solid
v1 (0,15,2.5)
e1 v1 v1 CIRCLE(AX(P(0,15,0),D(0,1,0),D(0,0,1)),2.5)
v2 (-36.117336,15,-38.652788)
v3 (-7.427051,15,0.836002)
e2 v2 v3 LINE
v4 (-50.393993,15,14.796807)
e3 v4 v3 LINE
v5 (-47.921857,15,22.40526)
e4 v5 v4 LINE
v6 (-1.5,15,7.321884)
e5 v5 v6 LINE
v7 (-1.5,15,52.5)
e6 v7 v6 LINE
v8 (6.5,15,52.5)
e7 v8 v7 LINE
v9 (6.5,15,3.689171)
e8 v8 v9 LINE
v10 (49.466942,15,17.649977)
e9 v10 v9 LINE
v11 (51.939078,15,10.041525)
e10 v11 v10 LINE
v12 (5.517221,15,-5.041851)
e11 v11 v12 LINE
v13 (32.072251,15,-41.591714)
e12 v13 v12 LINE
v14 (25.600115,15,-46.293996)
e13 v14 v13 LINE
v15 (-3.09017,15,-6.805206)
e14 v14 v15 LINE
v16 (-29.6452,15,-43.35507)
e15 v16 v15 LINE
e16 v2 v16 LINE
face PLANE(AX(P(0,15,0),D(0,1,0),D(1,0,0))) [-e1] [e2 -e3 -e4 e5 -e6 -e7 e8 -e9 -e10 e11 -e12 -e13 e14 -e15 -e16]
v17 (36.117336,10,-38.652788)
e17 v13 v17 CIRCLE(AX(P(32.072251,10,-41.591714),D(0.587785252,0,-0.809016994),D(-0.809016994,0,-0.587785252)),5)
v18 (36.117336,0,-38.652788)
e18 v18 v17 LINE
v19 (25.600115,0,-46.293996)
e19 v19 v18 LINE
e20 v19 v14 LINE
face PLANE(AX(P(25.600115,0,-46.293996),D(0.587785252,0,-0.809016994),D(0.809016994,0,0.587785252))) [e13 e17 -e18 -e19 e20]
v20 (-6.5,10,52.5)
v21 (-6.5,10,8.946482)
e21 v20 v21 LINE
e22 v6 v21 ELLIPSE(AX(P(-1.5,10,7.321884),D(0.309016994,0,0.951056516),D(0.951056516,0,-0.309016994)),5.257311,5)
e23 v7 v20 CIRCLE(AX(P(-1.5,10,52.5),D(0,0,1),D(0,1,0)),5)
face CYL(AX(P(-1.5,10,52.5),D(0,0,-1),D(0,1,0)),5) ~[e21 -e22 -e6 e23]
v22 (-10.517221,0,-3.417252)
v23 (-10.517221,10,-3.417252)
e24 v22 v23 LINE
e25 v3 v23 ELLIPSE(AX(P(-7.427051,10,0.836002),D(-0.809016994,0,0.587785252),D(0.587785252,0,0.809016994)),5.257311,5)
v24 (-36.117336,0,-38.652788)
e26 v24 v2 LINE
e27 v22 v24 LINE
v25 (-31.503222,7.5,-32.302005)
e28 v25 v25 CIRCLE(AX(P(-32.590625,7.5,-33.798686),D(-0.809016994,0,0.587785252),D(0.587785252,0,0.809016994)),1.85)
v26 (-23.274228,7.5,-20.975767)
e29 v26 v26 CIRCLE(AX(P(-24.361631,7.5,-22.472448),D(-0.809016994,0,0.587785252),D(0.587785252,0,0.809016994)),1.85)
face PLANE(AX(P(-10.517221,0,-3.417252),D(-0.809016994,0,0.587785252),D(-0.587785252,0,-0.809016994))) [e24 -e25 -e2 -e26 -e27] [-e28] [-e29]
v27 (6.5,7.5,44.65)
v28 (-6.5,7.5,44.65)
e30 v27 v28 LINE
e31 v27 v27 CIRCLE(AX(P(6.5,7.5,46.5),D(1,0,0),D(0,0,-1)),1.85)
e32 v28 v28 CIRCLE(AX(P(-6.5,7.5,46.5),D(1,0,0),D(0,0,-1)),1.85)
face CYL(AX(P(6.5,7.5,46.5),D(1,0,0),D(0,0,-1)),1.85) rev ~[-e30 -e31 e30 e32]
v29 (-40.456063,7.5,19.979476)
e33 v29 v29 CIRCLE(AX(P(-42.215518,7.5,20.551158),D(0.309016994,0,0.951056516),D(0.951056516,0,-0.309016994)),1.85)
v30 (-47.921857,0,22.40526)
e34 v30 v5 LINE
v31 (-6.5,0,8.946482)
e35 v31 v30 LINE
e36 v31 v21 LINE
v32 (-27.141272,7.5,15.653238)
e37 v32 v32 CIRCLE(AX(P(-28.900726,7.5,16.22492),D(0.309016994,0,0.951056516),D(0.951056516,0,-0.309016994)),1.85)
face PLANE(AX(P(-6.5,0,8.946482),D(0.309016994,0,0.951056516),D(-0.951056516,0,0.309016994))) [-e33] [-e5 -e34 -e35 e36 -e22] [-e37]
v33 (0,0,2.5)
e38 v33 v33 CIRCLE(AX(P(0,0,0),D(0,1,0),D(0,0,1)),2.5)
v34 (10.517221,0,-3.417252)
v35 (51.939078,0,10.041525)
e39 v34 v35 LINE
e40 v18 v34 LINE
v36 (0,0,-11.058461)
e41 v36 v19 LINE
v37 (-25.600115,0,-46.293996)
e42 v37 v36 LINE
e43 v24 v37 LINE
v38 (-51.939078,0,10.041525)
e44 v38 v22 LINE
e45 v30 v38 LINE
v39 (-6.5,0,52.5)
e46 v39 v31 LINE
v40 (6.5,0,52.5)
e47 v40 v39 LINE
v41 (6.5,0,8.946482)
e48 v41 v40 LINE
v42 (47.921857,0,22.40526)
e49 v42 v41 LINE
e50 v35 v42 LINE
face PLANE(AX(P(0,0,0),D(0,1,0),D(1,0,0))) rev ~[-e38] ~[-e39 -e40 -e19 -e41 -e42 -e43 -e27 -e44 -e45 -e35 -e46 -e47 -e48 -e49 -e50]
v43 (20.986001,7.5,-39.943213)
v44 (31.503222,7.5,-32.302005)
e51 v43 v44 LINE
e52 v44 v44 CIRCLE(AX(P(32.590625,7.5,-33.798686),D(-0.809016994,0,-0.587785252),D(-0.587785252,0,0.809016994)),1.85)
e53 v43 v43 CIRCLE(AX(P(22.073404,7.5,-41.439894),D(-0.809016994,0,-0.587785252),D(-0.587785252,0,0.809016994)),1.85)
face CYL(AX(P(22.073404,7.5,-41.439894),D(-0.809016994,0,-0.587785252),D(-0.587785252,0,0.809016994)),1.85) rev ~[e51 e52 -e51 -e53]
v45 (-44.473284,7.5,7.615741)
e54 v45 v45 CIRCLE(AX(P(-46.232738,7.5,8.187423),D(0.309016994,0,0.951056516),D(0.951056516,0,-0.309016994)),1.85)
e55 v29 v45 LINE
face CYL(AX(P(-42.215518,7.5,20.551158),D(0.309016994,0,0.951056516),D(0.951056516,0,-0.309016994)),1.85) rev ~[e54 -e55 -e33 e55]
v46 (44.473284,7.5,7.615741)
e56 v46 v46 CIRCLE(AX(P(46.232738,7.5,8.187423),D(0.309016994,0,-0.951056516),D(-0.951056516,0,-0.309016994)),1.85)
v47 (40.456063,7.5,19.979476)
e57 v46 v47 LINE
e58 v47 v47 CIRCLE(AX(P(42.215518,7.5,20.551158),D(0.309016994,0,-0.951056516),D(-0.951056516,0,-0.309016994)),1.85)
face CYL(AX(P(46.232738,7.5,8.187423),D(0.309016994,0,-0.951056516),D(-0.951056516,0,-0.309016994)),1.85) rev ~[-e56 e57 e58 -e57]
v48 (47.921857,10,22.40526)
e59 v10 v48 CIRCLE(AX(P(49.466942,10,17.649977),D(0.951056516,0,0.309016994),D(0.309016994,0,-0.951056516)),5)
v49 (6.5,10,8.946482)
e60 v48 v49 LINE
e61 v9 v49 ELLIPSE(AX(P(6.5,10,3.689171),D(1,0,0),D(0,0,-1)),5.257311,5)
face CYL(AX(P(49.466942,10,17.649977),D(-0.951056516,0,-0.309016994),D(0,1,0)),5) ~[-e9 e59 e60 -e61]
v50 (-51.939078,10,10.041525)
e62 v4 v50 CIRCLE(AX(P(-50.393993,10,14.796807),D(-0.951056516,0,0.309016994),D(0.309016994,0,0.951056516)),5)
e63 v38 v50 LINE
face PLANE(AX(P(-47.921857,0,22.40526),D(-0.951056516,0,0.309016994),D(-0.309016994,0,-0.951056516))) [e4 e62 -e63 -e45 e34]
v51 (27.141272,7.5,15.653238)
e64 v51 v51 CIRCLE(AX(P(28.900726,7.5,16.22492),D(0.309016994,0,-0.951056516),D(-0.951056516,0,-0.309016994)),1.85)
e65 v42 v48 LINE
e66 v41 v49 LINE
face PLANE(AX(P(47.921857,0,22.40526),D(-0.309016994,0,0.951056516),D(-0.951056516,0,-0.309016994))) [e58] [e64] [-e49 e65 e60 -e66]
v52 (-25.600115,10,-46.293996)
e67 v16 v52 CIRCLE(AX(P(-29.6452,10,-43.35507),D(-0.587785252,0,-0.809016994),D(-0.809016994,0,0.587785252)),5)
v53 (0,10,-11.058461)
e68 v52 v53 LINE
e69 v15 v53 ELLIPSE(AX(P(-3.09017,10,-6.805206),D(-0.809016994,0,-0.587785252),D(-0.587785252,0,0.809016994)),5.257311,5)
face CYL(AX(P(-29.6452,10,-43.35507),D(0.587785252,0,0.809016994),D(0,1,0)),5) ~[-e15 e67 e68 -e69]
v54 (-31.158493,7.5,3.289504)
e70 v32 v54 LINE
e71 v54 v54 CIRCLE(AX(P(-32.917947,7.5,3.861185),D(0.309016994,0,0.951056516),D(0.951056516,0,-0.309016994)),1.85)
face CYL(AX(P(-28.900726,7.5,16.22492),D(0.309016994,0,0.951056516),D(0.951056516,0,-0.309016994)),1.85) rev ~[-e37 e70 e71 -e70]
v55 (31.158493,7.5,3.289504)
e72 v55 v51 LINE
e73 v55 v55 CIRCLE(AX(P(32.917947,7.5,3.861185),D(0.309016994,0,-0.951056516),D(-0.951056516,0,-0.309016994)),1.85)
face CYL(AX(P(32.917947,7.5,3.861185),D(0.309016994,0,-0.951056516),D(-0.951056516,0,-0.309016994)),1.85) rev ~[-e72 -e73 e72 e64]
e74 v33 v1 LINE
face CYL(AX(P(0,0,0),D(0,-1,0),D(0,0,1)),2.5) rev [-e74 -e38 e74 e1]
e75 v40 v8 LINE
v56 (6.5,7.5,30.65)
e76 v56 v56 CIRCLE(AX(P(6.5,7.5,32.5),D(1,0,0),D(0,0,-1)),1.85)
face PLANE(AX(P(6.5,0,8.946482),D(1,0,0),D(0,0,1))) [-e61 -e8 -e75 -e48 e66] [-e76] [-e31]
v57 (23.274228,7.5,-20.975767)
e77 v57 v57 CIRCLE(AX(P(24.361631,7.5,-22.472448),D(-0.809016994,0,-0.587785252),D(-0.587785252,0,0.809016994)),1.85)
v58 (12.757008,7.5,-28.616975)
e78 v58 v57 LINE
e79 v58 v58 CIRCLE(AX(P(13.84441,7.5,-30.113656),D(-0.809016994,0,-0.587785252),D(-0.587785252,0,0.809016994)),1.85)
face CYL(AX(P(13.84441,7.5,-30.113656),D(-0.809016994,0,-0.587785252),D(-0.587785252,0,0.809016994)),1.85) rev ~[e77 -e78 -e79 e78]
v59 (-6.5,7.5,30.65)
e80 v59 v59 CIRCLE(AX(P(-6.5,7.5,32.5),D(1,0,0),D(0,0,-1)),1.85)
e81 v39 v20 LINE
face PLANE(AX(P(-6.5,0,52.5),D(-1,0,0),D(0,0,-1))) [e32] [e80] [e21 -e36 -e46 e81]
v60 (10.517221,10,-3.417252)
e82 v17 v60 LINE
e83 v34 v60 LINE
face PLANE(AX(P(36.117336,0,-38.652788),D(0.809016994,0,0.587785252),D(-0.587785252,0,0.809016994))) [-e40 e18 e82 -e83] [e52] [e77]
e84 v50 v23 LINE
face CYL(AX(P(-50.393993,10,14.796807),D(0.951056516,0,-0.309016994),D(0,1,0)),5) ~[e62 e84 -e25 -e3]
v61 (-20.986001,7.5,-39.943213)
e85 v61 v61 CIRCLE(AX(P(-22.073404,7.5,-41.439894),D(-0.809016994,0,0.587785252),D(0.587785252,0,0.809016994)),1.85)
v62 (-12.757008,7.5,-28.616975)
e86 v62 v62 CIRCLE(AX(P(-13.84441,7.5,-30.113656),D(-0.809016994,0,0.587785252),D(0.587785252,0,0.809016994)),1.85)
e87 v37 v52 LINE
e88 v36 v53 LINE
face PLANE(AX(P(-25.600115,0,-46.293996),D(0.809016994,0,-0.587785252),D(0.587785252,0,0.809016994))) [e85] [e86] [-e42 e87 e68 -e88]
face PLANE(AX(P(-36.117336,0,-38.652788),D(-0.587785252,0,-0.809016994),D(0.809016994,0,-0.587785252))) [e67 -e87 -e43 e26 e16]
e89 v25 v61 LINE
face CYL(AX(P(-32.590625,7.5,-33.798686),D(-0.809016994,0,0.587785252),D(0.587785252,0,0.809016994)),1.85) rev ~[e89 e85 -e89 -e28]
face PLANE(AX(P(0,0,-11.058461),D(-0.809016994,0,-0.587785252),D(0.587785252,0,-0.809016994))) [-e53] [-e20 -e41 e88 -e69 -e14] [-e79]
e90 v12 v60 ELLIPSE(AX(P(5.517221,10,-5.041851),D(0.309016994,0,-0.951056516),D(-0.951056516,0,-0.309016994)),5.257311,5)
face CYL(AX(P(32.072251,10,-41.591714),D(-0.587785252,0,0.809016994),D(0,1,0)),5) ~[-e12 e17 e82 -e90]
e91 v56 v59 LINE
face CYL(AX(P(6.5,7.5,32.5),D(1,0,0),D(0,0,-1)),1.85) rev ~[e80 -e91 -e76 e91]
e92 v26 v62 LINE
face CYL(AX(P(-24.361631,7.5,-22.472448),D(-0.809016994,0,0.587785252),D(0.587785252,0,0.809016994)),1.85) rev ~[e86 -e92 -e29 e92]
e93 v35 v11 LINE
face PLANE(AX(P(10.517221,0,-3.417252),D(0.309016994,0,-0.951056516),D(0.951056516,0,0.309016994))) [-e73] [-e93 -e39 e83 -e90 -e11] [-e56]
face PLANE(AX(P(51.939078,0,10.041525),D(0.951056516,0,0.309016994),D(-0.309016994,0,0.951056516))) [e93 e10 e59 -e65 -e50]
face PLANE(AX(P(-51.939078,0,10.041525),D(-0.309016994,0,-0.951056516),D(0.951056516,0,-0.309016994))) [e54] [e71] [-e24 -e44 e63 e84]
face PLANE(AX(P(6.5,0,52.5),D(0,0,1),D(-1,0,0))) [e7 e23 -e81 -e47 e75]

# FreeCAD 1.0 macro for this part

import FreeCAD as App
import Part
import Sketcher
Q = App.Units.Quantity


def edges_at(feature, points):
    """Names of the edges that pass closest to the given points."""
    edges = feature.Shape.Edges
    near = lambda p: min(range(len(edges)), key=lambda i: edges[i].distToShape(Part.Vertex(*p))[0])
    return sorted({f"Edge{near(p) + 1}" for p in points})

doc = App.newDocument("Part")
body = doc.addObject("PartDesign::Body", "Body")

# Sketch on XZ plane
sketch1 = body.newObject("Sketcher::SketchObject", "Sketch")
sketch1.AttachmentSupport = (doc.getObject("XZ_Plane"), [""])
sketch1.MapMode = "FlatFace"
sketch1.addGeometry(Part.LineSegment(App.Vector(6.5, 8.946482, 0), App.Vector(47.921857, 22.40526, 0)), False)
sketch1.addGeometry(Part.LineSegment(App.Vector(47.921857, 22.40526, 0), App.Vector(51.939078, 10.041525, 0)), False)
sketch1.addGeometry(Part.LineSegment(App.Vector(51.939078, 10.041525, 0), App.Vector(10.517221, -3.417252, 0)), False)
sketch1.addGeometry(Part.LineSegment(App.Vector(10.517221, -3.417252, 0), App.Vector(36.117336, -38.652788, 0)), False)
sketch1.addGeometry(Part.LineSegment(App.Vector(36.117336, -38.652788, 0), App.Vector(25.600115, -46.293996, 0)), False)
sketch1.addGeometry(Part.LineSegment(App.Vector(25.600115, -46.293996, 0), App.Vector(0, -11.058461, 0)), False)
sketch1.addGeometry(Part.LineSegment(App.Vector(0, -11.058461, 0), App.Vector(-25.600115, -46.293996, 0)), False)
sketch1.addGeometry(Part.LineSegment(App.Vector(-25.600115, -46.293996, 0), App.Vector(-36.117336, -38.652788, 0)), False)
sketch1.addGeometry(Part.LineSegment(App.Vector(-36.117336, -38.652788, 0), App.Vector(-10.517221, -3.417252, 0)), False)
sketch1.addGeometry(Part.LineSegment(App.Vector(-10.517221, -3.417252, 0), App.Vector(-51.939078, 10.041525, 0)), False)
sketch1.addGeometry(Part.LineSegment(App.Vector(-51.939078, 10.041525, 0), App.Vector(-47.921857, 22.40526, 0)), False)
sketch1.addGeometry(Part.LineSegment(App.Vector(-47.921857, 22.40526, 0), App.Vector(-6.5, 8.946482, 0)), False)
sketch1.addGeometry(Part.LineSegment(App.Vector(-6.5, 8.946482, 0), App.Vector(-6.5, 52.5, 0)), False)
sketch1.addGeometry(Part.LineSegment(App.Vector(-6.5, 52.5, 0), App.Vector(6.5, 52.5, 0)), False)
sketch1.addGeometry(Part.LineSegment(App.Vector(6.5, 52.5, 0), App.Vector(6.5, 8.946482, 0)), False)
sketch1.addGeometry(Part.Circle(App.Vector(0, 0, 0), App.Vector(0, 0, 1), 2.5), False)
sketch1.addConstraint(Sketcher.Constraint("Coincident", 0, 2, 1, 1))
sketch1.addConstraint(Sketcher.Constraint("Coincident", 1, 2, 2, 1))
sketch1.addConstraint(Sketcher.Constraint("Coincident", 2, 2, 3, 1))
sketch1.addConstraint(Sketcher.Constraint("Coincident", 3, 2, 4, 1))
sketch1.addConstraint(Sketcher.Constraint("Coincident", 4, 2, 5, 1))
sketch1.addConstraint(Sketcher.Constraint("Coincident", 5, 2, 6, 1))
sketch1.addConstraint(Sketcher.Constraint("Coincident", 6, 2, 7, 1))
sketch1.addConstraint(Sketcher.Constraint("Coincident", 7, 2, 8, 1))
sketch1.addConstraint(Sketcher.Constraint("Coincident", 8, 2, 9, 1))
sketch1.addConstraint(Sketcher.Constraint("Coincident", 9, 2, 10, 1))
sketch1.addConstraint(Sketcher.Constraint("Coincident", 10, 2, 11, 1))
sketch1.addConstraint(Sketcher.Constraint("Coincident", 11, 2, 12, 1))
sketch1.addConstraint(Sketcher.Constraint("Coincident", 12, 2, 13, 1))
sketch1.addConstraint(Sketcher.Constraint("Coincident", 13, 2, 14, 1))
sketch1.addConstraint(Sketcher.Constraint("Coincident", 14, 2, 0, 1))
sketch1.addConstraint(Sketcher.Constraint("Vertical", 12))
sketch1.addConstraint(Sketcher.Constraint("Horizontal", 13))
sketch1.addConstraint(Sketcher.Constraint("Vertical", 14))
sketch1.addConstraint(Sketcher.Constraint("Coincident", 15, 3, -1, 1))
sketch1.addConstraint(Sketcher.Constraint("Symmetric", 4, 2, 6, 2, -2))
sketch1.addConstraint(Sketcher.Constraint("Symmetric", 3, 2, 7, 2, -2))
sketch1.addConstraint(Sketcher.Constraint("Symmetric", 2, 2, 8, 2, -2))
sketch1.addConstraint(Sketcher.Constraint("Symmetric", 1, 2, 9, 2, -2))
sketch1.addConstraint(Sketcher.Constraint("Symmetric", 0, 2, 10, 2, -2))
sketch1.addConstraint(Sketcher.Constraint("Symmetric", 11, 2, 14, 2, -2))
sketch1.addConstraint(Sketcher.Constraint("PointOnObject", 5, 2, -2))
sketch1.addConstraint(Sketcher.Constraint("Perpendicular", 0, 1))
sketch1.addConstraint(Sketcher.Constraint("Perpendicular", 1, 2))
sketch1.addConstraint(Sketcher.Constraint("Perpendicular", 3, 4))
sketch1.addConstraint(Sketcher.Constraint("Perpendicular", 4, 5))
sketch1.addConstraint(Sketcher.Constraint("Equal", 0, 2))
sketch1.addConstraint(Sketcher.Constraint("Equal", 2, 3))
sketch1.addConstraint(Sketcher.Constraint("Equal", 1, 4))
sketch1.addConstraint(Sketcher.Constraint("Equal", 3, 5))
sketch1.addConstraint(Sketcher.Constraint("Diameter", 15, 5.0))
sketch1.addConstraint(Sketcher.Constraint("DistanceX", 13, 1, 13, 2, 13.0))
sketch1.addConstraint(Sketcher.Constraint("Angle", 0, Q("18 deg")))
sketch1.addConstraint(Sketcher.Constraint("Angle", 3, Q("-54 deg")))
sketch1.addConstraint(Sketcher.Constraint("DistanceY", -1, 1, 12, 2, 52.5))
sketch1.addConstraint(Sketcher.Constraint("DistanceY", 12, 1, 12, 2, 43.553518))
sketch1.addConstraint(Sketcher.Constraint("DistanceY", -1, 1, 0, 2, 22.40526))
pad1 = body.newObject("PartDesign::Pad", "Pad")
pad1.Profile = sketch1
pad1.Length = 15
pad1.Reversed = True

# Sketch on YZ plane
sketch2 = body.newObject("Sketcher::SketchObject", "Sketch001")
sketch2.AttachmentSupport = (doc.getObject("YZ_Plane"), [""])
sketch2.MapMode = "FlatFace"
sketch2.AttachmentOffset = App.Placement(App.Vector(0, 0, 6.5), App.Rotation())
sketch2.addGeometry(Part.Circle(App.Vector(7.5, 46.5, 0), App.Vector(0, 0, 1), 1.85), False)
sketch2.addGeometry(Part.Circle(App.Vector(7.5, 32.5, 0), App.Vector(0, 0, 1), 1.85), False)
sketch2.addConstraint(Sketcher.Constraint("Equal", 0, 1))
sketch2.addConstraint(Sketcher.Constraint("Vertical", 0, 3, 1, 3))
sketch2.addConstraint(Sketcher.Constraint("Diameter", 0, 3.7))
sketch2.addConstraint(Sketcher.Constraint("DistanceY", 1, 3, 0, 3, 14.0))
sketch2.addConstraint(Sketcher.Constraint("DistanceX", -1, 1, 0, 3, 7.5))
sketch2.addConstraint(Sketcher.Constraint("DistanceY", -1, 1, 0, 3, 46.5))
pocket1 = body.newObject("PartDesign::Pocket", "Pocket")
pocket1.Profile = sketch2
pocket1.Length = 15

# Sketch on an angled plane
sketch3 = body.newObject("Sketcher::SketchObject", "Sketch002")
sketch3.Placement = App.Placement(App.Vector(2.00861, 0, -6.181867), App.Rotation(App.Vector(-0.951056516, 0, -0.309016994), App.Vector(0, 0.999999999, 0), App.Vector(0.309016994, 0, -0.951056516), "ZXY"))
sketch3.addGeometry(Part.Circle(App.Vector(-46.5, 7.5, 0), App.Vector(0, 0, 1), 1.85), False)
sketch3.addGeometry(Part.Circle(App.Vector(-32.5, 7.5, 0), App.Vector(0, 0, 1), 1.85), False)
sketch3.addConstraint(Sketcher.Constraint("Equal", 0, 1))
sketch3.addConstraint(Sketcher.Constraint("Horizontal", 0, 3, 1, 3))
sketch3.addConstraint(Sketcher.Constraint("Diameter", 0, 3.7))
sketch3.addConstraint(Sketcher.Constraint("DistanceX", 0, 3, 1, 3, 14.0))
sketch3.addConstraint(Sketcher.Constraint("DistanceX", 0, 3, -1, 1, 46.5))
sketch3.addConstraint(Sketcher.Constraint("DistanceY", -1, 1, 0, 3, 7.5))
pocket2 = body.newObject("PartDesign::Pocket", "Pocket001")
pocket2.Profile = sketch3
pocket2.Length = 15

# Sketch on an angled plane
sketch4 = body.newObject("Sketcher::SketchObject", "Sketch003")
sketch4.Placement = App.Placement(App.Vector(-5.25861, 0, -3.820604), App.Rotation(App.Vector(-0.587785252, 0, 0.809016994), App.Vector(0, 0.999999999, 0), App.Vector(-0.809016994, 0, -0.587785252), "ZXY"))
sketch4.addGeometry(Part.Circle(App.Vector(-46.5, 7.5, 0), App.Vector(0, 0, 1), 1.85), False)
sketch4.addGeometry(Part.Circle(App.Vector(-32.5, 7.5, 0), App.Vector(0, 0, 1), 1.85), False)
sketch4.addConstraint(Sketcher.Constraint("Equal", 0, 1))
sketch4.addConstraint(Sketcher.Constraint("Horizontal", 0, 3, 1, 3))
sketch4.addConstraint(Sketcher.Constraint("Diameter", 0, 3.7))
sketch4.addConstraint(Sketcher.Constraint("DistanceX", 0, 3, 1, 3, 14.0))
sketch4.addConstraint(Sketcher.Constraint("DistanceX", 0, 3, -1, 1, 46.5))
sketch4.addConstraint(Sketcher.Constraint("DistanceY", -1, 1, 0, 3, 7.5))
pocket3 = body.newObject("PartDesign::Pocket", "Pocket002")
pocket3.Profile = sketch4
pocket3.Length = 15

# Sketch on an angled plane
sketch5 = body.newObject("Sketcher::SketchObject", "Sketch004")
sketch5.Placement = App.Placement(App.Vector(-5.25861, 0, 3.820604), App.Rotation(App.Vector(0.587785252, 0, 0.809016994), App.Vector(0, 0.999999999, 0), App.Vector(-0.809016994, 0, 0.587785252), "ZXY"))
sketch5.addGeometry(Part.Circle(App.Vector(-46.5, 7.5, 0), App.Vector(0, 0, 1), 1.85), False)
sketch5.addGeometry(Part.Circle(App.Vector(-32.5, 7.5, 0), App.Vector(0, 0, 1), 1.85), False)
sketch5.addConstraint(Sketcher.Constraint("Equal", 0, 1))
sketch5.addConstraint(Sketcher.Constraint("Horizontal", 0, 3, 1, 3))
sketch5.addConstraint(Sketcher.Constraint("Diameter", 0, 3.7))
sketch5.addConstraint(Sketcher.Constraint("DistanceX", 0, 3, 1, 3, 14.0))
sketch5.addConstraint(Sketcher.Constraint("DistanceX", 0, 3, -1, 1, 46.5))
sketch5.addConstraint(Sketcher.Constraint("DistanceY", -1, 1, 0, 3, 7.5))
pocket4 = body.newObject("PartDesign::Pocket", "Pocket003")
pocket4.Profile = sketch5
pocket4.Length = 15

# Sketch on an angled plane
sketch6 = body.newObject("Sketcher::SketchObject", "Sketch005")
sketch6.Placement = App.Placement(App.Vector(2.00861, 0, 6.181867), App.Rotation(App.Vector(0.951056516, 0, -0.309016994), App.Vector(0, 0.999999999, 0), App.Vector(0.309016994, 0, 0.951056516), "ZXY"))
sketch6.addGeometry(Part.Circle(App.Vector(-46.5, 7.5, 0), App.Vector(0, 0, 1), 1.85), False)
sketch6.addGeometry(Part.Circle(App.Vector(-32.5, 7.5, 0), App.Vector(0, 0, 1), 1.85), False)
sketch6.addConstraint(Sketcher.Constraint("Equal", 0, 1))
sketch6.addConstraint(Sketcher.Constraint("Horizontal", 0, 3, 1, 3))
sketch6.addConstraint(Sketcher.Constraint("Diameter", 0, 3.7))
sketch6.addConstraint(Sketcher.Constraint("DistanceX", 0, 3, 1, 3, 14.0))
sketch6.addConstraint(Sketcher.Constraint("DistanceX", 0, 3, -1, 1, 46.5))
sketch6.addConstraint(Sketcher.Constraint("DistanceY", -1, 1, 0, 3, 7.5))
pocket5 = body.newObject("PartDesign::Pocket", "Pocket004")
pocket5.Profile = sketch6
pocket5.Length = 15
doc.recompute()

fillet = body.newObject("PartDesign::Fillet", "Fillet")
fillet.Base = (pocket5, edges_at(pocket5, [
    (23.317, 15, -21.035),
    (-12.8, 15, -28.676),
    (27.211, 15, 15.676),
    (-31.228, 15, 3.312),
    (-6.5, 15, 30.723),
]))
fillet.Radius = 5

doc.recompute()
